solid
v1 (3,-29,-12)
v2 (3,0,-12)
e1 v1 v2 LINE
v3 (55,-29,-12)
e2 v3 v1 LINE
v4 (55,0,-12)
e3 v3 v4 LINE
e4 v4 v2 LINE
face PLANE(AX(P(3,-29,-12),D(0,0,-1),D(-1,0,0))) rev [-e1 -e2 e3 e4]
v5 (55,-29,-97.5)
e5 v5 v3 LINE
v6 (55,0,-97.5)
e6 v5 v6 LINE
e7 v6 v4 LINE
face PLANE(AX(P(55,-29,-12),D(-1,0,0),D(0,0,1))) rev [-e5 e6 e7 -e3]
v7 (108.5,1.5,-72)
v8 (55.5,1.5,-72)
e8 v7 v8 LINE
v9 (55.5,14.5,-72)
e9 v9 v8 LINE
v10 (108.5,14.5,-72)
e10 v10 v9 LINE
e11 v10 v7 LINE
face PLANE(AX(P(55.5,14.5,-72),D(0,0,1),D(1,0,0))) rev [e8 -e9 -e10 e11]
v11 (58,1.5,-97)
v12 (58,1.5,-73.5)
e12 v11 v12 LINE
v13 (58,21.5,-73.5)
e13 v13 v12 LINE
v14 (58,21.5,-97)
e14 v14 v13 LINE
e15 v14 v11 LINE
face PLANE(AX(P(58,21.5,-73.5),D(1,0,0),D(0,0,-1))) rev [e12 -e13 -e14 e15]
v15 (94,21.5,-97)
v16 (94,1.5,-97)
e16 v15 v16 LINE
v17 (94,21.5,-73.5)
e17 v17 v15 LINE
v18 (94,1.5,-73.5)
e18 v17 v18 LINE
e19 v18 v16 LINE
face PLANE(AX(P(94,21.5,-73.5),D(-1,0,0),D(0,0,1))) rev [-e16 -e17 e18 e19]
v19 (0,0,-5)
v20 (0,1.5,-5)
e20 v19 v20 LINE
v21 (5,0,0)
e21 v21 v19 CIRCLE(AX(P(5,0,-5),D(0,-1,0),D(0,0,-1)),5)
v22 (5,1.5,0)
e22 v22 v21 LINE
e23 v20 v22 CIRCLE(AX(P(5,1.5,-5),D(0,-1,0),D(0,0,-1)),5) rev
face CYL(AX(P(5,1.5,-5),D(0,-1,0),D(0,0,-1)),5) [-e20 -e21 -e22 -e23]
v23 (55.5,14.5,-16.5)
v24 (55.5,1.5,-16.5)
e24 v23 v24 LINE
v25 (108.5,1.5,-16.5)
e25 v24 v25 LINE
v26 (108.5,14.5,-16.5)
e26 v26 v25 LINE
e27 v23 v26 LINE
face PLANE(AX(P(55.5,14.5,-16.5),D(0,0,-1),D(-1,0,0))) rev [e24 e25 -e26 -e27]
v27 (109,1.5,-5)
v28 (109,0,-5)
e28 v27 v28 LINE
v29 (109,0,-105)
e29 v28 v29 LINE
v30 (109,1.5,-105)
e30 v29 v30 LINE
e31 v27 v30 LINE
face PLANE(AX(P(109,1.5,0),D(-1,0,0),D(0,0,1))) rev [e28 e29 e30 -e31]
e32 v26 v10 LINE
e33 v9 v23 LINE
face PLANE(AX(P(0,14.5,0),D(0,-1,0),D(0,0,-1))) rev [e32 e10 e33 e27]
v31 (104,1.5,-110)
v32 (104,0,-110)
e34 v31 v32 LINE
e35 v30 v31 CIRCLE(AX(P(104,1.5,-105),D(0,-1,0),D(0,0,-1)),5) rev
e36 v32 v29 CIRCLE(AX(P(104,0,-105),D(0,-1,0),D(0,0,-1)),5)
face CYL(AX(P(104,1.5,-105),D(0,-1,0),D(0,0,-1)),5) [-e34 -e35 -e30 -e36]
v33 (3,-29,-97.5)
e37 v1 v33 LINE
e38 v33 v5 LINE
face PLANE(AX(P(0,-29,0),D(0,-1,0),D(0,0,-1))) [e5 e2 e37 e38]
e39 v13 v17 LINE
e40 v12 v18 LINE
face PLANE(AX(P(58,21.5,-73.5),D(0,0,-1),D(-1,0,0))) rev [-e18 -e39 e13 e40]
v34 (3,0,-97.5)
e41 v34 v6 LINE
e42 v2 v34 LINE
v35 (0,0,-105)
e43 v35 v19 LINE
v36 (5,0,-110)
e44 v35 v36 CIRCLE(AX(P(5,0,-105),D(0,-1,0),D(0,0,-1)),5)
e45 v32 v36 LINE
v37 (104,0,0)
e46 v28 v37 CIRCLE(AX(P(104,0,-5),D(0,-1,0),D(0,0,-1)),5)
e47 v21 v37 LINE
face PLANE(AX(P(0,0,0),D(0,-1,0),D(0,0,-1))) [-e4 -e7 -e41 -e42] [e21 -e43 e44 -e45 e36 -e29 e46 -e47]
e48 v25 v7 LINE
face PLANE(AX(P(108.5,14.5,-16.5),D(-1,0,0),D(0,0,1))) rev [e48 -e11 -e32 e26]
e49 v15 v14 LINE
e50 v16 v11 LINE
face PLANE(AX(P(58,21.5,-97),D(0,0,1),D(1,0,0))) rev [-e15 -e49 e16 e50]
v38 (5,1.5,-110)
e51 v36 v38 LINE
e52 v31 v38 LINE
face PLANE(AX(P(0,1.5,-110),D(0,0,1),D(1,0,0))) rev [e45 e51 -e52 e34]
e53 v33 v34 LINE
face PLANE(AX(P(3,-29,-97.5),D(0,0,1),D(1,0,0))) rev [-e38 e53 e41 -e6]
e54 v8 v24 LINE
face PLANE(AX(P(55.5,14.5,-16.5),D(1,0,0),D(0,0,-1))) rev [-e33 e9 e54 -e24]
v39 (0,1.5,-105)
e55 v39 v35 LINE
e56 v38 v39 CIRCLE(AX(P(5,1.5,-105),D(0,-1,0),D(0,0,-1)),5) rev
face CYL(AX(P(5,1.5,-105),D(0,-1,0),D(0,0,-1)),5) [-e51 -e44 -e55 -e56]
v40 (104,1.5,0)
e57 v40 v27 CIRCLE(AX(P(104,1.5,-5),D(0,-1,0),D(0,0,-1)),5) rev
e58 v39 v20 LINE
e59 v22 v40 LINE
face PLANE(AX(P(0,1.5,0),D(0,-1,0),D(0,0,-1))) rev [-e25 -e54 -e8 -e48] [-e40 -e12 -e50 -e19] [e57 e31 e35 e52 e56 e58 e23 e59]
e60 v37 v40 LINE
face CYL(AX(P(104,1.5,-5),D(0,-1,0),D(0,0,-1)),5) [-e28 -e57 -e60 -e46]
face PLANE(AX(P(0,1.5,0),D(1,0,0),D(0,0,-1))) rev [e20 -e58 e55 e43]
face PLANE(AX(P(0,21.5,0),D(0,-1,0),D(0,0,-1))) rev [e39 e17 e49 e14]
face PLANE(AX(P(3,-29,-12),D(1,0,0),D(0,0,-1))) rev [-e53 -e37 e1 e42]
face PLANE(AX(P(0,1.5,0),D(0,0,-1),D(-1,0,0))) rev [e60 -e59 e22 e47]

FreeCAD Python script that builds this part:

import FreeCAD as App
import Part
import Sketcher
Q = App.Units.Quantity


def edges_at(feature, points):
    """Names of the edges that pass closest to the given points."""
    edges = feature.Shape.Edges
    near = lambda p: min(range(len(edges)), key=lambda i: edges[i].distToShape(Part.Vertex(*p))[0])
    return sorted({f"Edge{near(p) + 1}" for p in points})


def add_polygon(sketch, points):
    """Adds a closed chain of lines whose ends are joined by coincident constraints."""
    first, n = sketch.GeometryCount, len(points)
    for a, b in zip(points, points[1:] + points[:1]):
        sketch.addGeometry(Part.LineSegment(App.Vector(*a, 0), App.Vector(*b, 0)), False)
    for i in range(n):
        sketch.addConstraint(Sketcher.Constraint("Coincident", first + i, 2, first + (i + 1) % n, 1))

doc = App.newDocument("Part")
params = doc.addObject("Spreadsheet::Sheet", "Params")
for row, (alias, value) in enumerate([
    ("sketch1_width", "109 mm"),
    ("sketch1_height", "110 mm"),
    ("pad1_length", "1.5 mm"),
    ("fillet_radius", "5 mm"),
    ("sketch2_width", "52 mm"),
    ("sketch2_height", "85.5 mm"),
    ("pad2_length", "29 mm"),
    ("sketch3_width", "53 mm"),
    ("sketch3_width2", "50 mm"),
    ("sketch3_height", "49 mm"),
    ("sketch3_height2", "55.5 mm"),
    ("pad3_length", "13 mm"),
    ("sketch4_width", "50 mm"),
    ("sketch4_height", "49 mm"),
    ("pad4_length", "13 mm"),
    ("sketch5_width", "36 mm"),
    ("sketch5_height", "23.5 mm"),
    ("pad5_length", "20 mm"),
], start=1):
    params.set(f"A{row}", alias)
    params.set(f"B{row}", "=" + value)
    params.setAlias(f"B{row}", alias)

body = doc.addObject("PartDesign::Body", "Body")

# Sketch on XZ plane
sketch1 = body.newObject("Sketcher::SketchObject", "Sketch")
sketch1.AttachmentSupport = (doc.getObject("XZ_Plane"), [""])
sketch1.MapMode = "FlatFace"
add_polygon(sketch1, [(0, -110), (0, 0), (109, 0), (109, -110)])  # lines 0-3
sketch1.addConstraint([
    Sketcher.Constraint("Vertical", 0),
    Sketcher.Constraint("Horizontal", 1),
    Sketcher.Constraint("Vertical", 2),
    Sketcher.Constraint("Horizontal", 3),
    Sketcher.Constraint("Coincident", 0, 2, -1, 1),
    Sketcher.Constraint("DistanceX", 1, 1, 1, 2, Q("109 mm")),
    Sketcher.Constraint("DistanceY", 0, 1, 0, 2, Q("110 mm")),
])
sketch1.setExpression("Constraints[9]", "Params.sketch1_width")
sketch1.setExpression("Constraints[10]", "Params.sketch1_height")
pad1 = body.newObject("PartDesign::Pad", "Pad")
pad1.Profile = sketch1
pad1.setExpression("Length", "Params.pad1_length")
pad1.Reversed = True
doc.recompute()

fillet = body.newObject("PartDesign::Fillet", "Fillet")
fillet.Base = (pad1, edges_at(pad1, [
    (0, 0.75, -110),
    (109, 0.75, -110),
    (109, 0.75, 0),
    (0, 0.75, 0),
]))
fillet.setExpression("Radius", "Params.fillet_radius")

# Sketch on XZ plane
sketch2 = body.newObject("Sketcher::SketchObject", "Sketch001")
sketch2.AttachmentSupport = (doc.getObject("XZ_Plane"), [""])
sketch2.MapMode = "FlatFace"
add_polygon(sketch2, [(3, -12), (3, -97.5), (55, -97.5), (55, -12)])  # lines 0-3
sketch2.addConstraint([
    Sketcher.Constraint("Vertical", 0),
    Sketcher.Constraint("Horizontal", 1),
    Sketcher.Constraint("Vertical", 2),
    Sketcher.Constraint("Horizontal", 3),
    Sketcher.Constraint("DistanceX", 1, 1, 1, 2, Q("52 mm")),
    Sketcher.Constraint("DistanceY", 0, 2, 0, 1, Q("85.5 mm")),
    Sketcher.Constraint("DistanceX", -1, 1, 0, 2, Q("3 mm")),
    Sketcher.Constraint("DistanceY", 2, 2, -1, 1, Q("12 mm")),
])
sketch2.setExpression("Constraints[8]", "Params.sketch2_width")
sketch2.setExpression("Constraints[9]", "Params.sketch2_height")
pad2 = body.newObject("PartDesign::Pad", "Pad001")
pad2.Profile = sketch2
pad2.setExpression("Length", "Params.pad2_length")

# Sketch on XZ plane
sketch3 = body.newObject("Sketcher::SketchObject", "Sketch002")
sketch3.AttachmentSupport = (doc.getObject("XZ_Plane"), [""])
sketch3.MapMode = "FlatFace"
sketch3.AttachmentOffset = App.Placement(App.Vector(0, 0, -1.5), App.Rotation())
add_polygon(sketch3, [(55.5, -72), (55.5, -16.5), (108.5, -16.5), (108.5, -72)])  # lines 0-3
add_polygon(sketch3, [(107, -18), (57, -18), (57, -67), (107, -67)])  # lines 4-7
sketch3.addConstraint([
    Sketcher.Constraint("Vertical", 0),
    Sketcher.Constraint("Horizontal", 1),
    Sketcher.Constraint("Vertical", 2),
    Sketcher.Constraint("Horizontal", 3),
    Sketcher.Constraint("Horizontal", 4),
    Sketcher.Constraint("Vertical", 5),
    Sketcher.Constraint("Horizontal", 6),
    Sketcher.Constraint("Vertical", 7),
    Sketcher.Constraint("DistanceX", 1, 1, 1, 2, Q("53 mm")),
    Sketcher.Constraint("DistanceX", 4, 2, 4, 1, Q("50 mm")),
    Sketcher.Constraint("DistanceY", 5, 2, 5, 1, Q("49 mm")),
    Sketcher.Constraint("DistanceY", 0, 1, 0, 2, Q("55.5 mm")),
    Sketcher.Constraint("DistanceY", 2, 2, -1, 1, Q("72 mm")),
    Sketcher.Constraint("DistanceX", -1, 1, 4, 2, Q("57 mm")),
    Sketcher.Constraint("DistanceY", 4, 2, -1, 1, Q("18 mm")),
    Sketcher.Constraint("DistanceX", -1, 1, 0, 2, Q("55.5 mm")),
])
sketch3.setExpression("Constraints[16]", "Params.sketch3_width")
sketch3.setExpression("Constraints[17]", "Params.sketch3_width2")
sketch3.setExpression("Constraints[18]", "Params.sketch3_height")
sketch3.setExpression("Constraints[19]", "Params.sketch3_height2")
pad3 = body.newObject("PartDesign::Pad", "Pad002")
pad3.Profile = sketch3
pad3.setExpression("Length", "Params.pad3_length")
pad3.Reversed = True

# Sketch on XZ plane
sketch4 = body.newObject("Sketcher::SketchObject", "Sketch003")
sketch4.AttachmentSupport = (doc.getObject("XZ_Plane"), [""])
sketch4.MapMode = "FlatFace"
sketch4.AttachmentOffset = App.Placement(App.Vector(0, 0, -1.5), App.Rotation())
add_polygon(sketch4, [(57, -67), (57, -18), (107, -18), (107, -67)])  # lines 0-3
sketch4.addConstraint([
    Sketcher.Constraint("Vertical", 0),
    Sketcher.Constraint("Horizontal", 1),
    Sketcher.Constraint("Vertical", 2),
    Sketcher.Constraint("Horizontal", 3),
    Sketcher.Constraint("DistanceX", 1, 1, 1, 2, Q("50 mm")),
    Sketcher.Constraint("DistanceY", 0, 1, 0, 2, Q("49 mm")),
    Sketcher.Constraint("DistanceX", -1, 1, 0, 2, Q("57 mm")),
    Sketcher.Constraint("DistanceY", 0, 2, -1, 1, Q("18 mm")),
])
sketch4.setExpression("Constraints[8]", "Params.sketch4_width")
sketch4.setExpression("Constraints[9]", "Params.sketch4_height")
pad4 = body.newObject("PartDesign::Pad", "Pad003")
pad4.Profile = sketch4
pad4.setExpression("Length", "Params.pad4_length")
pad4.Reversed = True

# Sketch on XZ plane
sketch5 = body.newObject("Sketcher::SketchObject", "Sketch004")
sketch5.AttachmentSupport = (doc.getObject("XZ_Plane"), [""])
sketch5.MapMode = "FlatFace"
sketch5.AttachmentOffset = App.Placement(App.Vector(0, 0, -1.5), App.Rotation())
add_polygon(sketch5, [(58, -97), (58, -73.5), (94, -73.5), (94, -97)])  # lines 0-3
sketch5.addConstraint([
    Sketcher.Constraint("Vertical", 0),
    Sketcher.Constraint("Horizontal", 1),
    Sketcher.Constraint("Vertical", 2),
    Sketcher.Constraint("Horizontal", 3),
    Sketcher.Constraint("DistanceX", 1, 1, 1, 2, Q("36 mm")),
    Sketcher.Constraint("DistanceY", 0, 1, 0, 2, Q("23.5 mm")),
    Sketcher.Constraint("DistanceX", -1, 1, 0, 2, Q("58 mm")),
    Sketcher.Constraint("DistanceY", 2, 2, -1, 1, Q("97 mm")),
])
sketch5.setExpression("Constraints[8]", "Params.sketch5_width")
sketch5.setExpression("Constraints[9]", "Params.sketch5_height")
pad5 = body.newObject("PartDesign::Pad", "Pad004")
pad5.Profile = sketch5
pad5.setExpression("Length", "Params.pad5_length")
pad5.Reversed = True

doc.recompute()
